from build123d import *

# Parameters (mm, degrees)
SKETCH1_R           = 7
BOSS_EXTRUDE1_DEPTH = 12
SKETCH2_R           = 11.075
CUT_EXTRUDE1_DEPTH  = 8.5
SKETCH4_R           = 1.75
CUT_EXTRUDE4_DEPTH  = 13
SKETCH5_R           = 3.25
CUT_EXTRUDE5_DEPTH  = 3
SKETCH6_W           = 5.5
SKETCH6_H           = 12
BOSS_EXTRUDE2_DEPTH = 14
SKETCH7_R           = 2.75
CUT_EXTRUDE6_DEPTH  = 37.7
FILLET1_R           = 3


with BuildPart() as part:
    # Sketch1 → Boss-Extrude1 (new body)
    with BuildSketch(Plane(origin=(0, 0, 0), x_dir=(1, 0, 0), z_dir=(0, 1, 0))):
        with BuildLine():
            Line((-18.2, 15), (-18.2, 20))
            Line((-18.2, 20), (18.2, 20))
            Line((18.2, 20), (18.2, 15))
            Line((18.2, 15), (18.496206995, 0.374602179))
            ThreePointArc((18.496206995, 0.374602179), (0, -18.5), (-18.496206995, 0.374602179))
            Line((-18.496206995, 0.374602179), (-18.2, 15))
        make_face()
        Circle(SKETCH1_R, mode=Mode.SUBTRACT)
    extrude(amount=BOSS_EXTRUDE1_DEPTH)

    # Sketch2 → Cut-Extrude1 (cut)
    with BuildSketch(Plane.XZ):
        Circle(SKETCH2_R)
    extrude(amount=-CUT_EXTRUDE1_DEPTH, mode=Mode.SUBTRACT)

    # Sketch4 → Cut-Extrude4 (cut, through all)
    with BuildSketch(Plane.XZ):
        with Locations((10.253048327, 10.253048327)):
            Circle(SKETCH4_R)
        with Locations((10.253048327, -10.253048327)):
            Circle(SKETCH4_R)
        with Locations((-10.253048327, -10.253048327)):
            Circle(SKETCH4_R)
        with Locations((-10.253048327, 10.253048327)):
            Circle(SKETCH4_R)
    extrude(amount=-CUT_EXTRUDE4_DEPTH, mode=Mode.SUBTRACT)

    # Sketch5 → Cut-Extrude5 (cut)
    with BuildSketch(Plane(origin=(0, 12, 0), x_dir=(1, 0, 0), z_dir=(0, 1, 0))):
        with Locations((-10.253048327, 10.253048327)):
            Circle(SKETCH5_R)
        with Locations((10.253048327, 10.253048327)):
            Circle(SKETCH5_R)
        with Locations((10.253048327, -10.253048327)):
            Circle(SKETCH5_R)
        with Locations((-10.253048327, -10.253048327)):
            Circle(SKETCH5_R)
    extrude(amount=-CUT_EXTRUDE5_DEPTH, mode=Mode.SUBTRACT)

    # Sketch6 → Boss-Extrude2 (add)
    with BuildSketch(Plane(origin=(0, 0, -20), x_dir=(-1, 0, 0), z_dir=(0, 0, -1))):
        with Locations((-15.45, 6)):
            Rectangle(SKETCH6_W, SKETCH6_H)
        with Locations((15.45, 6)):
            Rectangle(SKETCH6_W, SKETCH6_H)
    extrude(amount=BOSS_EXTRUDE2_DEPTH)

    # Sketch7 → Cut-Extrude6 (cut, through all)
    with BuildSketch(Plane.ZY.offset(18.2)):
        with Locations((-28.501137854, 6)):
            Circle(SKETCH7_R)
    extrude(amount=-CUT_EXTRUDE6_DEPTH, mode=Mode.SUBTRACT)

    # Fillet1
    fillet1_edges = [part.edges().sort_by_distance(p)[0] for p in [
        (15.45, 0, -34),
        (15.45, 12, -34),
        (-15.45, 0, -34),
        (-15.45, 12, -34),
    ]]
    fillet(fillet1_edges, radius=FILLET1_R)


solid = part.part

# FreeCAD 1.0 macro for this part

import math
import FreeCAD as App
import Part
import Sketcher

V = App.Vector
Q = App.Units.Quantity


def edges_at(feature, points):
    """Names of the edges that pass closest to the given points."""
    edges = feature.Shape.Edges
    near = lambda p: min(range(len(edges)), key=lambda i: edges[i].distToShape(Part.Vertex(*p))[0])
    return sorted({f"Edge{near(p) + 1}" for p in points})


def add_polygon(sketch, points):
    """Adds a closed chain of lines whose ends are joined by coincident constraints."""
    first, n = sketch.GeometryCount, len(points)
    for a, b in zip(points, points[1:] + points[:1]):
        sketch.addGeometry(Part.LineSegment(App.Vector(*a, 0), App.Vector(*b, 0)), False)
    for i in range(n):
        sketch.addConstraint(Sketcher.Constraint("Coincident", first + i, 2, first + (i + 1) % n, 1))

doc = App.newDocument("Part")
body = doc.addObject("PartDesign::Body", "Body")

# Sketch on XZ plane
sketch1 = body.newObject("Sketcher::SketchObject", "Sketch")
sketch1.AttachmentSupport = (doc.getObject("XZ_Plane"), [""])
sketch1.MapMode = "FlatFace"
sketch1.addGeometry([
    Part.LineSegment(V(-18, -20, 0), V(-18, -15, 0)),  # 0
    Part.LineSegment(V(-18, -15, 0), V(-18, 0, 0)),  # 1
    Part.ArcOfCircle(Part.Circle(V(0, 0, 0), V(0, 0, 1), 18), math.radians(-1), math.radians(181)),  # 2
    Part.LineSegment(V(18, 0, 0), V(18, -15, 0)),  # 3
    Part.LineSegment(V(18, -15, 0), V(18, -20, 0)),  # 4
    Part.LineSegment(V(18, -20, 0), V(-18, -20, 0)),  # 5
    Part.Circle(V(0, 0, 0), V(0, 0, 1), 7),  # 6
], False)
sketch1.addConstraint([
    Sketcher.Constraint("Coincident", 0, 2, 1, 1),
    Sketcher.Constraint("Tangent", 1, 2, 2, 2),
    Sketcher.Constraint("Tangent", 2, 1, 3, 1),
    Sketcher.Constraint("Coincident", 3, 2, 4, 1),
    Sketcher.Constraint("Coincident", 4, 2, 5, 1),
    Sketcher.Constraint("Coincident", 5, 2, 0, 1),
    Sketcher.Constraint("Vertical", 0),
    Sketcher.Constraint("Vertical", 4),
    Sketcher.Constraint("Horizontal", 5),
    Sketcher.Constraint("Coincident", 2, 3, -1, 1),
    Sketcher.Constraint("Coincident", 6, 3, -1, 1),
    Sketcher.Constraint("Symmetric", 0, 2, 3, 2, -2),
    Sketcher.Constraint("Diameter", 6, Q("14 mm")),
    Sketcher.Constraint("Radius", 2, Q("18.5 mm")),
    Sketcher.Constraint("DistanceY", 0, 1, 0, 2, Q("5 mm")),
    Sketcher.Constraint("DistanceX", 5, 2, 5, 1, Q("36.4 mm")),
    Sketcher.Constraint("DistanceY", 0, 2, -1, 1, Q("15 mm")),
])
pad1 = body.newObject("PartDesign::Pad", "Pad")
pad1.Profile = sketch1
pad1.Length = 12
pad1.Reversed = True

# Sketch on XZ plane
sketch2 = body.newObject("Sketcher::SketchObject", "Sketch001")
sketch2.AttachmentSupport = (doc.getObject("XZ_Plane"), [""])
sketch2.MapMode = "FlatFace"
sketch2.addGeometry(Part.Circle(V(0, 0, 0), V(0, 0, 1), 11), False)
sketch2.addConstraint([
    Sketcher.Constraint("Coincident", 0, 3, -1, 1),
    Sketcher.Constraint("Diameter", 0, Q("22.15 mm")),
])
pocket1 = body.newObject("PartDesign::Pocket", "Pocket")
pocket1.Profile = sketch2
pocket1.Length = 8.5

# Sketch on XZ plane
sketch3 = body.newObject("Sketcher::SketchObject", "Sketch002")
sketch3.AttachmentSupport = (doc.getObject("XZ_Plane"), [""])
sketch3.MapMode = "FlatFace"
sketch3.addGeometry([
    Part.Circle(V(10.3, 10.3, 0), V(0, 0, 1), 1.8),
    Part.Circle(V(10.3, -10.3, 0), V(0, 0, 1), 1.8),
    Part.Circle(V(-10.3, -10.3, 0), V(0, 0, 1), 1.8),
    Part.Circle(V(-10.3, 10.3, 0), V(0, 0, 1), 1.8),
], False)
sketch3.addConstraint([
    Sketcher.Constraint("Equal", 0, 1),
    Sketcher.Constraint("Equal", 1, 2),
    Sketcher.Constraint("Equal", 2, 3),
    Sketcher.Constraint("Symmetric", 0, 3, 2, 3, -1, 1),
    Sketcher.Constraint("Symmetric", 1, 3, 3, 3, -1, 1),
    Sketcher.Constraint("Symmetric", 1, 3, 2, 3, -2),
    Sketcher.Constraint("Diameter", 0, Q("3.5 mm")),
    Sketcher.Constraint("DistanceX", -1, 1, 0, 3, Q("10.253048 mm")),
    Sketcher.Constraint("DistanceY", -1, 1, 0, 3, Q("10.253048 mm")),
])
pocket2 = body.newObject("PartDesign::Pocket", "Pocket001")
pocket2.Profile = sketch3
pocket2.Type = "ThroughAll"

# Sketch on XZ plane
sketch4 = body.newObject("Sketcher::SketchObject", "Sketch003")
sketch4.AttachmentSupport = (doc.getObject("XZ_Plane"), [""])
sketch4.MapMode = "FlatFace"
sketch4.AttachmentOffset = App.Placement(V(0, 0, -12), App.Rotation())
sketch4.addGeometry([
    Part.Circle(V(-10.3, -10.3, 0), V(0, 0, 1), 3.2),
    Part.Circle(V(10.3, -10.3, 0), V(0, 0, 1), 3.2),
    Part.Circle(V(10.3, 10.3, 0), V(0, 0, 1), 3.2),
    Part.Circle(V(-10.3, 10.3, 0), V(0, 0, 1), 3.2),
], False)
sketch4.addConstraint([
    Sketcher.Constraint("Equal", 0, 1),
    Sketcher.Constraint("Equal", 1, 2),
    Sketcher.Constraint("Equal", 2, 3),
    Sketcher.Constraint("Symmetric", 0, 3, 2, 3, -1, 1),
    Sketcher.Constraint("Symmetric", 1, 3, 3, 3, -1, 1),
    Sketcher.Constraint("Symmetric", 0, 3, 1, 3, -2),
    Sketcher.Constraint("Diameter", 0, Q("6.5 mm")),
    Sketcher.Constraint("DistanceX", 0, 3, -1, 1, Q("10.253048 mm")),
    Sketcher.Constraint("DistanceY", 0, 3, -1, 1, Q("10.253048 mm")),
])
pocket3 = body.newObject("PartDesign::Pocket", "Pocket002")
pocket3.Profile = sketch4
pocket3.Length = 3
pocket3.Reversed = True

# Sketch on XY plane
sketch5 = body.newObject("Sketcher::SketchObject", "Sketch004")
sketch5.AttachmentSupport = (doc.getObject("XY_Plane"), [""])
sketch5.MapMode = "FlatFace"
sketch5.AttachmentOffset = App.Placement(V(0, 0, -20), App.Rotation())
add_polygon(sketch5, [(18, 12), (18, 0), (13, 0), (13, 12)])  # lines 0-3
add_polygon(sketch5, [(-13, 12), (-13, 0), (-18, 0), (-18, 12)])  # lines 4-7
sketch5.addConstraint([
    Sketcher.Constraint("Vertical", 0),
    Sketcher.Constraint("Horizontal", 1),
    Sketcher.Constraint("Vertical", 2),
    Sketcher.Constraint("Horizontal", 3),
    Sketcher.Constraint("Vertical", 4),
    Sketcher.Constraint("Horizontal", 5),
    Sketcher.Constraint("Vertical", 6),
    Sketcher.Constraint("Horizontal", 7),
    Sketcher.Constraint("Symmetric", 1, 2, 4, 2, -1, 1),
    Sketcher.Constraint("Symmetric", 0, 2, 5, 2, -2),
    Sketcher.Constraint("Horizontal", 3, 2, 6, 2),
    Sketcher.Constraint("DistanceY", 0, 2, 0, 1, Q("12 mm")),
    Sketcher.Constraint("DistanceX", 1, 2, 1, 1, Q("5.5 mm")),
    Sketcher.Constraint("DistanceX", -1, 1, 0, 2, Q("18.2 mm")),
])
pad2 = body.newObject("PartDesign::Pad", "Pad001")
pad2.Profile = sketch5
pad2.Length = 14
pad2.Reversed = True

# Sketch on YZ plane
sketch6 = body.newObject("Sketcher::SketchObject", "Sketch005")
sketch6.AttachmentSupport = (doc.getObject("YZ_Plane"), [""])
sketch6.MapMode = "FlatFace"
sketch6.AttachmentOffset = App.Placement(V(0, 0, -18.2), App.Rotation())
sketch6.addGeometry(Part.Circle(V(6, -28.5, 0), V(0, 0, 1), 2.8), False)
sketch6.addConstraint([
    Sketcher.Constraint("Diameter", 0, Q("5.5 mm")),
    Sketcher.Constraint("DistanceX", -1, 1, 0, 3, Q("6 mm")),
    Sketcher.Constraint("DistanceY", 0, 3, -1, 1, Q("28.501138 mm")),
])
pocket4 = body.newObject("PartDesign::Pocket", "Pocket003")
pocket4.Profile = sketch6
pocket4.Type = "ThroughAll"
pocket4.Reversed = True
doc.recompute()

fillet = body.newObject("PartDesign::Fillet", "Fillet")
fillet.Base = (pocket4, edges_at(pocket4, [
    (15.45, 0, -34),
    (15.45, 12, -34),
    (-15.45, 0, -34),
    (-15.45, 12, -34),
]))
fillet.Radius = 3

doc.recompute()
